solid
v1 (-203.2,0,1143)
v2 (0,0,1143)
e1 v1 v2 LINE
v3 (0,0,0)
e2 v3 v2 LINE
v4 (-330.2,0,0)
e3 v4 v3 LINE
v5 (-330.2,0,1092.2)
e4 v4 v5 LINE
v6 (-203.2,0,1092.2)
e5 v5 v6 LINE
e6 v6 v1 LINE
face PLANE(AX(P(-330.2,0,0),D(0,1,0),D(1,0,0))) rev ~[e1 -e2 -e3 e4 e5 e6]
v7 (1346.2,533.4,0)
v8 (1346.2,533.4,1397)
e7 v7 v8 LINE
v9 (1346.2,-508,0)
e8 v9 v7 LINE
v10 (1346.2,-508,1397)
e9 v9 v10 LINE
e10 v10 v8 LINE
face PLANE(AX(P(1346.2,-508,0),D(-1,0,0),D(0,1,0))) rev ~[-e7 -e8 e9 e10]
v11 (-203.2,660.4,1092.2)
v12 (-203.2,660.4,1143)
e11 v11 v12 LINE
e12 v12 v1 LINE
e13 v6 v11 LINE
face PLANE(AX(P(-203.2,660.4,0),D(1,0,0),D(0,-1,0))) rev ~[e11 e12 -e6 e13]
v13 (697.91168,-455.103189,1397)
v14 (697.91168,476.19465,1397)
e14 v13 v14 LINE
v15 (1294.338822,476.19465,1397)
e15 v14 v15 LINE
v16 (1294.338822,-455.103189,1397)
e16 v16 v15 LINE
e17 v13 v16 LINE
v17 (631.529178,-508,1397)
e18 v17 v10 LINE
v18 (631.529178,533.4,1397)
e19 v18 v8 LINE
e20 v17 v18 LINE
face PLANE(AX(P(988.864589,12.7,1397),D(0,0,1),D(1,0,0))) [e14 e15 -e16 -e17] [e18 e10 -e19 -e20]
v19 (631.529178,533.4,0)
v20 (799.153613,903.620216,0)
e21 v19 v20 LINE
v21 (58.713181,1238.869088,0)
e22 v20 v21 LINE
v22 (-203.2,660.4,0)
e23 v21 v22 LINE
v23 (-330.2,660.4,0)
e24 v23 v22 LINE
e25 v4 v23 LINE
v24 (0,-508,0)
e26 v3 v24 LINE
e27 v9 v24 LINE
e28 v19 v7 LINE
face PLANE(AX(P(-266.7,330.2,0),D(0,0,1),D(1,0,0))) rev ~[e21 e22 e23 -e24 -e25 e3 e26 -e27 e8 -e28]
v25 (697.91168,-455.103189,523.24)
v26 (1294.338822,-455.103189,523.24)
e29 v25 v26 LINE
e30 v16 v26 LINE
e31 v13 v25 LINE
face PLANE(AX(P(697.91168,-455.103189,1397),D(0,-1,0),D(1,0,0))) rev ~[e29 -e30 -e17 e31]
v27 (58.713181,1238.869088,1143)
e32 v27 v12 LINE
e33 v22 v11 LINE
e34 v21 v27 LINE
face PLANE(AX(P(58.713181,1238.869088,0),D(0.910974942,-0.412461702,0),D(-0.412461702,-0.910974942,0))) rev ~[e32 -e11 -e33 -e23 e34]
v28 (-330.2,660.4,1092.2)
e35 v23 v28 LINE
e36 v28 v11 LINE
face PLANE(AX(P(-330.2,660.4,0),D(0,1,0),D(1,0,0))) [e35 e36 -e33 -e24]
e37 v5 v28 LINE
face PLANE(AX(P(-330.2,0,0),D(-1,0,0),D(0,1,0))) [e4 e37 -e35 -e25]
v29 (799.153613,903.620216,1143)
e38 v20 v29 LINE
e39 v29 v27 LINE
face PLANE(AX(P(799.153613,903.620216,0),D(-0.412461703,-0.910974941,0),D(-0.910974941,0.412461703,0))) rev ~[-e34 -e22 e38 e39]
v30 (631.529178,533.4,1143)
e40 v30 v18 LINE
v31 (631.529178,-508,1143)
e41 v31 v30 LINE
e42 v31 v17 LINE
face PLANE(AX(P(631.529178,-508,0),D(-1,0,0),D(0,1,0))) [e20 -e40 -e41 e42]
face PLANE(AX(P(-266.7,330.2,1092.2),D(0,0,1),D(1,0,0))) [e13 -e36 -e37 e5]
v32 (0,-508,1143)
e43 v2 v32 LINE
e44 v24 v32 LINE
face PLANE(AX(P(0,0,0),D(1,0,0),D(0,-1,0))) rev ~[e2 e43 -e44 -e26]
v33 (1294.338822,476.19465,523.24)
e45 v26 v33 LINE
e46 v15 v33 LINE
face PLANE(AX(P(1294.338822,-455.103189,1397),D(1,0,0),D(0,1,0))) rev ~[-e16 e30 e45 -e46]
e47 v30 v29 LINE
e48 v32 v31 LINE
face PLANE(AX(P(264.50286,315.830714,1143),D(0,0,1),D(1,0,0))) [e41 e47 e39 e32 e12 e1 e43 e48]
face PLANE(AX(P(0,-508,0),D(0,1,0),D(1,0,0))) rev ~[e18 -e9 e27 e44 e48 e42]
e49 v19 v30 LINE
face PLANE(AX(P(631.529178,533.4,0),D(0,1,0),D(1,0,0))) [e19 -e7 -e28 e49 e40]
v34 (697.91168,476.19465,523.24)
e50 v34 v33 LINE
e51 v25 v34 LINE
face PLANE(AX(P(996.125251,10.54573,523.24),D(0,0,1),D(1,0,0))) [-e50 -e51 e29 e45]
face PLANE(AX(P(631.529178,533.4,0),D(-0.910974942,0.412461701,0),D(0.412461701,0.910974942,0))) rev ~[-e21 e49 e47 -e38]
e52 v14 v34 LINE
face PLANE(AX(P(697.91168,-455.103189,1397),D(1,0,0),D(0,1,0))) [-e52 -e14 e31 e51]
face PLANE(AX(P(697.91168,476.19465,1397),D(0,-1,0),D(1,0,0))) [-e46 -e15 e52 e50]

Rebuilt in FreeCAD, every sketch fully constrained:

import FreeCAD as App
import Part
import Sketcher

V = App.Vector
Q = App.Units.Quantity

doc = App.newDocument("Part")
body = doc.addObject("PartDesign::Body", "Body")

# Sketch on XY plane
sketch1 = body.newObject("Sketcher::SketchObject", "Sketch")
sketch1.AttachmentSupport = (doc.getObject("XY_Plane"), [""])
sketch1.MapMode = "FlatFace"
sketch1.addGeometry(Part.LineSegment(V(631.529178, 533.4, 0), V(631.529178, -508, 0)), False)
sketch1.addGeometry(Part.LineSegment(V(631.529178, -508, 0), V(1346.2, -508, 0)), False)
sketch1.addGeometry(Part.LineSegment(V(1346.2, -508, 0), V(1346.2, 533.4, 0)), False)
sketch1.addGeometry(Part.LineSegment(V(1346.2, 533.4, 0), V(631.529178, 533.4, 0)), False)
sketch1.addConstraint(Sketcher.Constraint("Coincident", 0, 2, 1, 1))
sketch1.addConstraint(Sketcher.Constraint("Coincident", 1, 2, 2, 1))
sketch1.addConstraint(Sketcher.Constraint("Coincident", 2, 2, 3, 1))
sketch1.addConstraint(Sketcher.Constraint("Coincident", 3, 2, 0, 1))
sketch1.addConstraint(Sketcher.Constraint("Vertical", 0))
sketch1.addConstraint(Sketcher.Constraint("Horizontal", 1))
sketch1.addConstraint(Sketcher.Constraint("Vertical", 2))
sketch1.addConstraint(Sketcher.Constraint("Horizontal", 3))
sketch1.addConstraint(Sketcher.Constraint("DistanceY", 0, 2, 0, 1, Q("41 in")))
sketch1.addConstraint(Sketcher.Constraint("DistanceY", 0, 2, -1, 1, Q("20 in")))
sketch1.addConstraint(Sketcher.Constraint("DistanceX", -1, 1, 1, 2, Q("53 in")))
sketch1.addConstraint(Sketcher.Constraint("DistanceX", 1, 1, 1, 2, Q("714.670822 mm")))
pad1 = body.newObject("PartDesign::Pad", "Pad")
pad1.Profile = sketch1
pad1.Length = Q("55 in")

# Sketch on XY plane
sketch2 = body.newObject("Sketcher::SketchObject", "Sketch001")
sketch2.AttachmentSupport = (doc.getObject("XY_Plane"), [""])
sketch2.MapMode = "FlatFace"
sketch2.addGeometry(Part.LineSegment(V(-203.2, 0, 0), V(0, 0, 0)), False)
sketch2.addGeometry(Part.LineSegment(V(0, 0, 0), V(0, -508, 0)), False)
sketch2.addGeometry(Part.LineSegment(V(0, -508, 0), V(631.529178, -508, 0)), False)
sketch2.addGeometry(Part.LineSegment(V(631.529178, -508, 0), V(631.529178, 533.4, 0)), False)
sketch2.addGeometry(Part.LineSegment(V(631.529178, 533.4, 0), V(799.153613, 903.620216, 0)), False)
sketch2.addGeometry(Part.LineSegment(V(799.153613, 903.620216, 0), V(58.713181, 1238.869088, 0)), False)
sketch2.addGeometry(Part.LineSegment(V(58.713181, 1238.869088, 0), V(-203.2, 660.4, 0)), False)
sketch2.addGeometry(Part.LineSegment(V(-203.2, 660.4, 0), V(-203.2, 0, 0)), False)
sketch2.addConstraint(Sketcher.Constraint("Coincident", 0, 2, 1, 1))
sketch2.addConstraint(Sketcher.Constraint("Coincident", 1, 2, 2, 1))
sketch2.addConstraint(Sketcher.Constraint("Coincident", 2, 2, 3, 1))
sketch2.addConstraint(Sketcher.Constraint("Coincident", 3, 2, 4, 1))
sketch2.addConstraint(Sketcher.Constraint("Coincident", 4, 2, 5, 1))
sketch2.addConstraint(Sketcher.Constraint("Coincident", 5, 2, 6, 1))
sketch2.addConstraint(Sketcher.Constraint("Coincident", 6, 2, 7, 1))
sketch2.addConstraint(Sketcher.Constraint("Coincident", 7, 2, 0, 1))
sketch2.addConstraint(Sketcher.Constraint("Horizontal", 0))
sketch2.addConstraint(Sketcher.Constraint("Vertical", 1))
sketch2.addConstraint(Sketcher.Constraint("Horizontal", 2))
sketch2.addConstraint(Sketcher.Constraint("Vertical", 3))
sketch2.addConstraint(Sketcher.Constraint("Vertical", 7))
sketch2.addConstraint(Sketcher.Constraint("Coincident", 0, 2, -1, 1))
sketch2.addConstraint(Sketcher.Constraint("Perpendicular", 4, 5))
sketch2.addConstraint(Sketcher.Constraint("Perpendicular", 5, 6))
sketch2.addConstraint(Sketcher.Constraint("DistanceX", 0, 1, 0, 2, Q("8 in")))
sketch2.addConstraint(Sketcher.Constraint("DistanceY", 1, 2, 1, 1, Q("20 in")))
sketch2.addConstraint(Sketcher.Constraint("DistanceY", 3, 1, 3, 2, Q("41 in")))
sketch2.addConstraint(Sketcher.Constraint("DistanceY", 7, 2, 7, 1, Q("26 in")))
sketch2.addConstraint(Sketcher.Constraint("Distance", 4, Q("16 in")))
sketch2.addConstraint(Sketcher.Constraint("Distance", 5, Q("32 in")))
sketch2.addConstraint(Sketcher.Constraint("Distance", 6, Q("25 in")))
pad2 = body.newObject("PartDesign::Pad", "Pad001")
pad2.Profile = sketch2
pad2.Length = Q("45 in")

# Sketch on XY plane
sketch3 = body.newObject("Sketcher::SketchObject", "Sketch002")
sketch3.AttachmentSupport = (doc.getObject("XY_Plane"), [""])
sketch3.MapMode = "FlatFace"
sketch3.addGeometry(Part.LineSegment(V(-330.2, 660.4, 0), V(-330.2, 0, 0)), False)
sketch3.addGeometry(Part.LineSegment(V(-330.2, 0, 0), V(-203.2, 0, 0)), False)
sketch3.addGeometry(Part.LineSegment(V(-203.2, 0, 0), V(-203.2, 660.4, 0)), False)
sketch3.addGeometry(Part.LineSegment(V(-203.2, 660.4, 0), V(-330.2, 660.4, 0)), False)
sketch3.addConstraint(Sketcher.Constraint("Coincident", 0, 2, 1, 1))
sketch3.addConstraint(Sketcher.Constraint("Coincident", 1, 2, 2, 1))
sketch3.addConstraint(Sketcher.Constraint("Coincident", 2, 2, 3, 1))
sketch3.addConstraint(Sketcher.Constraint("Coincident", 3, 2, 0, 1))
sketch3.addConstraint(Sketcher.Constraint("Vertical", 0))
sketch3.addConstraint(Sketcher.Constraint("Horizontal", 1))
sketch3.addConstraint(Sketcher.Constraint("Vertical", 2))
sketch3.addConstraint(Sketcher.Constraint("Horizontal", 3))
sketch3.addConstraint(Sketcher.Constraint("PointOnObject", 0, 2, -1))
sketch3.addConstraint(Sketcher.Constraint("DistanceX", 1, 1, 1, 2, Q("5 in")))
sketch3.addConstraint(Sketcher.Constraint("DistanceY", 0, 2, 0, 1, Q("26 in")))
sketch3.addConstraint(Sketcher.Constraint("DistanceX", 0, 2, -1, 1, Q("13 in")))
pad3 = body.newObject("PartDesign::Pad", "Pad002")
pad3.Profile = sketch3
pad3.Length = Q("43 in")

# Sketch on XY plane
sketch4 = body.newObject("Sketcher::SketchObject", "Sketch003")
sketch4.AttachmentSupport = (doc.getObject("XY_Plane"), [""])
sketch4.MapMode = "FlatFace"
sketch4.AttachmentOffset = App.Placement(V(0, 0, 55 * 25.4), App.Rotation())
sketch4.addGeometry(Part.LineSegment(V(697.91168, 476.19465, 0), V(697.91168, -455.103189, 0)), False)
sketch4.addGeometry(Part.LineSegment(V(697.91168, -455.103189, 0), V(1294.338822, -455.103189, 0)), False)
sketch4.addGeometry(Part.LineSegment(V(1294.338822, -455.103189, 0), V(1294.338822, 476.19465, 0)), False)
sketch4.addGeometry(Part.LineSegment(V(1294.338822, 476.19465, 0), V(697.91168, 476.19465, 0)), False)
sketch4.addConstraint(Sketcher.Constraint("Coincident", 0, 2, 1, 1))
sketch4.addConstraint(Sketcher.Constraint("Coincident", 1, 2, 2, 1))
sketch4.addConstraint(Sketcher.Constraint("Coincident", 2, 2, 3, 1))
sketch4.addConstraint(Sketcher.Constraint("Coincident", 3, 2, 0, 1))
sketch4.addConstraint(Sketcher.Constraint("Vertical", 0))
sketch4.addConstraint(Sketcher.Constraint("Horizontal", 1))
sketch4.addConstraint(Sketcher.Constraint("Vertical", 2))
sketch4.addConstraint(Sketcher.Constraint("Horizontal", 3))
sketch4.addConstraint(Sketcher.Constraint("DistanceX", 1, 1, 1, 2, Q("596.427142 mm")))
sketch4.addConstraint(Sketcher.Constraint("DistanceY", 0, 2, 0, 1, Q("931.297839 mm")))
sketch4.addConstraint(Sketcher.Constraint("DistanceX", -1, 1, 0, 2, Q("697.91168 mm")))
sketch4.addConstraint(Sketcher.Constraint("DistanceY", 0, 2, -1, 1, Q("455.103189 mm")))
pocket1 = body.newObject("PartDesign::Pocket", "Pocket")
pocket1.Profile = sketch4
pocket1.Length = Q("34.4 in")

doc.recompute()
